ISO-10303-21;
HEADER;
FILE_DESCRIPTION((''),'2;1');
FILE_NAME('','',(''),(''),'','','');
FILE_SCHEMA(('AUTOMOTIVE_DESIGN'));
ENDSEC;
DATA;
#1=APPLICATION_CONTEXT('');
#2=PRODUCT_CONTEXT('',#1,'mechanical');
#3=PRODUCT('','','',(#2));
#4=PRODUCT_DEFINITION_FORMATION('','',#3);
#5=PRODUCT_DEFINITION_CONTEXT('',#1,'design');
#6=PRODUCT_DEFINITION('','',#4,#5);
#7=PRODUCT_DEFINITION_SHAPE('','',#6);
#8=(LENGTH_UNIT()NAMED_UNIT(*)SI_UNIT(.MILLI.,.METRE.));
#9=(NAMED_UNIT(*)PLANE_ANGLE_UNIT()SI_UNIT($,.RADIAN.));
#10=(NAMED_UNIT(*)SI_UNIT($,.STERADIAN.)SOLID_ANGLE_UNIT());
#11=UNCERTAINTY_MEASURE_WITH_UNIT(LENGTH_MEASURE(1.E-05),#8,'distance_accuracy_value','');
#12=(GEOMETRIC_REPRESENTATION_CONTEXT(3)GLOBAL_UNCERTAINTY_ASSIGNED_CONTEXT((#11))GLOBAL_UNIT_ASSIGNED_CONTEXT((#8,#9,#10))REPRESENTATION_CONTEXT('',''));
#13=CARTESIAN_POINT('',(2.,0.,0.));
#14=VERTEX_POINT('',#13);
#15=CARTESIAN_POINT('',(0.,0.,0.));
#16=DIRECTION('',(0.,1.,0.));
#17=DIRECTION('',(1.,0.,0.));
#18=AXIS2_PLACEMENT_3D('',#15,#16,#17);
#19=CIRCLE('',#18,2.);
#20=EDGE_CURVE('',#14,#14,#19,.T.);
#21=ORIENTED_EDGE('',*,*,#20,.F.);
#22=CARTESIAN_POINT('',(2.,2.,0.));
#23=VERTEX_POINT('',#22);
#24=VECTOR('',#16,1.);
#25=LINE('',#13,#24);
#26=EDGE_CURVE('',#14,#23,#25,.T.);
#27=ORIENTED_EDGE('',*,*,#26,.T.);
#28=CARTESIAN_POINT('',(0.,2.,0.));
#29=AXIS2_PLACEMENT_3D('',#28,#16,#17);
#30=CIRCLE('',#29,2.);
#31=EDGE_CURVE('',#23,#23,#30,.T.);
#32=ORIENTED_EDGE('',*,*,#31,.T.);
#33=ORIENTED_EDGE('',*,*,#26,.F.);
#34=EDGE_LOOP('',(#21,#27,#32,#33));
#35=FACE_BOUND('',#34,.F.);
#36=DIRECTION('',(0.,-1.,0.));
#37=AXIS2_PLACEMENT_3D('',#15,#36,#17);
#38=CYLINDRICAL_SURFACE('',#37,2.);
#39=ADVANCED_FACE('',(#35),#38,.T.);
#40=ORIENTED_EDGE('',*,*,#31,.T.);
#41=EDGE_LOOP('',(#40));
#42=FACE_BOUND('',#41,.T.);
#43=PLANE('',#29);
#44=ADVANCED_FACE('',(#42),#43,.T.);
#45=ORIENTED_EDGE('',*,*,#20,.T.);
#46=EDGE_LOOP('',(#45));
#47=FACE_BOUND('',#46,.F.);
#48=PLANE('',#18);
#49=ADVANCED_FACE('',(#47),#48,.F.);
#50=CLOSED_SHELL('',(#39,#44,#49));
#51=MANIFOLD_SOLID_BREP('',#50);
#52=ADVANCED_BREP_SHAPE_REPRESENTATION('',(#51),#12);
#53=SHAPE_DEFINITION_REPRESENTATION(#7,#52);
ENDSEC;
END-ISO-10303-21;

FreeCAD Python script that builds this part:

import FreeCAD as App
import Part
import Sketcher

doc = App.newDocument("Part")
body = doc.addObject("PartDesign::Body", "Body")

sketch1 = doc.addObject("Sketcher::SketchObject", "Sketch")
body.addObject(sketch1)
sketch1.AttachmentSupport = (doc.XZ_Plane, [""])
sketch1.MapMode = "FlatFace"
sketch1.addGeometry(Part.Circle(App.Vector(0, 0, 0), App.Vector(0, 0, 1), 2), False)
sketch1.addConstraint([
    Sketcher.Constraint("Coincident", 0, 3, -1, 1),
    Sketcher.Constraint("Diameter", 0, 4.0),
])
pad1 = doc.addObject("PartDesign::Pad", "Pad")
body.addObject(pad1)
pad1.Profile = sketch1
pad1.Length = 2
pad1.Reversed = True

doc.recompute()
